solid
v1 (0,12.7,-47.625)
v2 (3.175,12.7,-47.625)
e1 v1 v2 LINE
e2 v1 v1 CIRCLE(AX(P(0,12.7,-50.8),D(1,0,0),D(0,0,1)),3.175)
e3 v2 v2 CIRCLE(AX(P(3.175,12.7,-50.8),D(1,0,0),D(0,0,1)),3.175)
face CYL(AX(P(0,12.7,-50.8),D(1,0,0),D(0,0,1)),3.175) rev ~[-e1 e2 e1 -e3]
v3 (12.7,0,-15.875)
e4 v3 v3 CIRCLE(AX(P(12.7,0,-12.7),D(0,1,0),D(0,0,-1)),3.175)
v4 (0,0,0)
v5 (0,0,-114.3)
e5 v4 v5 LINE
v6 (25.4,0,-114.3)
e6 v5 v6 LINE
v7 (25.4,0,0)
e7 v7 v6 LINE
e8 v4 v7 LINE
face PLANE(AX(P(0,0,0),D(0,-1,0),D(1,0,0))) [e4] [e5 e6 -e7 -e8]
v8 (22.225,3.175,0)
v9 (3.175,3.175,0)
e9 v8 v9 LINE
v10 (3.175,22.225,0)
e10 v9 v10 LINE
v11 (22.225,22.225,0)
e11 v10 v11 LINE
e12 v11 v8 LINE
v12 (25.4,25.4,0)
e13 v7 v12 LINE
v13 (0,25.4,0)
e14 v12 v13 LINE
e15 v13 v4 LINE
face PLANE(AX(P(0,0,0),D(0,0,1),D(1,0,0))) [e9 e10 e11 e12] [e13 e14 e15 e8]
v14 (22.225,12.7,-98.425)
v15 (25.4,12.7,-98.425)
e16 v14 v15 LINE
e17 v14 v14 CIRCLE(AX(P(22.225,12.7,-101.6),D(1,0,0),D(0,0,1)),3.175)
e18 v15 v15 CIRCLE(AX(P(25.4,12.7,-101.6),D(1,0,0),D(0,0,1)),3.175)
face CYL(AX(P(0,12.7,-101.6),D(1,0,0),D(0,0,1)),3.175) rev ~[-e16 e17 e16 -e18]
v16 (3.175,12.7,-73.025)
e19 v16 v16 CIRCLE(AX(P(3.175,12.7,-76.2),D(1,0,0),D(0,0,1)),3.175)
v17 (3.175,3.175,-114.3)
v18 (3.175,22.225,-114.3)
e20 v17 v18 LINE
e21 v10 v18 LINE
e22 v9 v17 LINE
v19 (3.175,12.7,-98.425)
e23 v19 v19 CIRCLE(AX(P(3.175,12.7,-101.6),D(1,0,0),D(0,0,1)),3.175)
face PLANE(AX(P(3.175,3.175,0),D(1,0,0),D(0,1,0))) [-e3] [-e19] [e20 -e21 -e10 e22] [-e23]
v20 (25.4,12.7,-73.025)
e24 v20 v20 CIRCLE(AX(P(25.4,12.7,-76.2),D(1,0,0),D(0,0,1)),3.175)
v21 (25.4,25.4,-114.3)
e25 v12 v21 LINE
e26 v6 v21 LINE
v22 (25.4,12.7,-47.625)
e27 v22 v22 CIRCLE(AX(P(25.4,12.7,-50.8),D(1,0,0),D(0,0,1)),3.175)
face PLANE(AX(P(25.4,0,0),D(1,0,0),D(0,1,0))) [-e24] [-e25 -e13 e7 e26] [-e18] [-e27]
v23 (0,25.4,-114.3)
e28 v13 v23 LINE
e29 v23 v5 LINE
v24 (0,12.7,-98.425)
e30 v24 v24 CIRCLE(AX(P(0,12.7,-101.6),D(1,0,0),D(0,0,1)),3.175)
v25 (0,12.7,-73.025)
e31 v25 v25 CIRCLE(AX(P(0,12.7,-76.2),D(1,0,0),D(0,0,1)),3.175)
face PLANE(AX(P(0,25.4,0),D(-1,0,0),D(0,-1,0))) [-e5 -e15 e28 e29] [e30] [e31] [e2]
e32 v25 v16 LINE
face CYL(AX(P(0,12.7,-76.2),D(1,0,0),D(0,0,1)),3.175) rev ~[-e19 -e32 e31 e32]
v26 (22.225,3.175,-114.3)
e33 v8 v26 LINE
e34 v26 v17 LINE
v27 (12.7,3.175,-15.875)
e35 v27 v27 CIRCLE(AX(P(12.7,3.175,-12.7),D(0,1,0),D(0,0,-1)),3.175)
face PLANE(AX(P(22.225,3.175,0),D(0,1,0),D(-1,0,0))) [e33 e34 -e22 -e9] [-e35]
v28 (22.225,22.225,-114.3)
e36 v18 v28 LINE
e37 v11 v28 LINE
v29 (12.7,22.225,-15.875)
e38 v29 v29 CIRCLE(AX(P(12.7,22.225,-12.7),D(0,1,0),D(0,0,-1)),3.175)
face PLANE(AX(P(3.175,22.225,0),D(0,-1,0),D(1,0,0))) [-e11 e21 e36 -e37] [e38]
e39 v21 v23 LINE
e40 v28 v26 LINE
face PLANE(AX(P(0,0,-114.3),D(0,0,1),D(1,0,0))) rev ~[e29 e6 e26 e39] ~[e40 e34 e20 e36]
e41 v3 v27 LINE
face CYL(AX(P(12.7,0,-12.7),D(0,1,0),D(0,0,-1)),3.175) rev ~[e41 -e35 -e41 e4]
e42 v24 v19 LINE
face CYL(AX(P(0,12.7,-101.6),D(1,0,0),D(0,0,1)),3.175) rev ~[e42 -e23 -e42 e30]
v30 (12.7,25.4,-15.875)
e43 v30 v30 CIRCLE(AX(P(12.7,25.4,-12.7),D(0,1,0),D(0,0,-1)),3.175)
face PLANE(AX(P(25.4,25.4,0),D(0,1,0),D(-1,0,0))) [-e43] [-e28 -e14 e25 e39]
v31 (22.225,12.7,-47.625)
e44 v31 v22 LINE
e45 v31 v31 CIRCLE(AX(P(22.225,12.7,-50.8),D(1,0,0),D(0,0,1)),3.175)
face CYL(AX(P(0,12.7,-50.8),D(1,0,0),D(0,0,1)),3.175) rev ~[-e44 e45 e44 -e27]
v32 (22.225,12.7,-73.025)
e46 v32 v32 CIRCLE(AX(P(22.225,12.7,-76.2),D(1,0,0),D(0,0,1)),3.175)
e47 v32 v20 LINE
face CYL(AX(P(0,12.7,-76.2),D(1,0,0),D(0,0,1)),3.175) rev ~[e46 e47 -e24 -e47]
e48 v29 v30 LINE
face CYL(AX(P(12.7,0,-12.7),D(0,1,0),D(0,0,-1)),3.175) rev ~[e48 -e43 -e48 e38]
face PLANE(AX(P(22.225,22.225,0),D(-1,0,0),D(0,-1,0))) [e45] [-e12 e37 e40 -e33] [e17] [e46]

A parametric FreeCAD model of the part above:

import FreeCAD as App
import Part
import Sketcher
Q = App.Units.Quantity

doc = App.newDocument("Part")
body = doc.addObject("PartDesign::Body", "Body")

sketch1 = body.newObject("Sketcher::SketchObject", "Sketch")
sketch1.AttachmentSupport = (doc.getObject("XY_Plane"), [""])
sketch1.MapMode = "FlatFace"
sketch1.addGeometry([
    Part.LineSegment(App.Vector(0, 25.4, 0), App.Vector(0, 0, 0)),
    Part.LineSegment(App.Vector(0, 0, 0), App.Vector(25.4, 0, 0)),
    Part.LineSegment(App.Vector(25.4, 0, 0), App.Vector(25.4, 25.4, 0)),
    Part.LineSegment(App.Vector(25.4, 25.4, 0), App.Vector(0, 25.4, 0)),
    Part.LineSegment(App.Vector(3.175, 3.175, 0), App.Vector(3.175, 22.225, 0)),
    Part.LineSegment(App.Vector(3.175, 22.225, 0), App.Vector(22.225, 22.225, 0)),
    Part.LineSegment(App.Vector(22.225, 22.225, 0), App.Vector(22.225, 3.175, 0)),
    Part.LineSegment(App.Vector(22.225, 3.175, 0), App.Vector(3.175, 3.175, 0)),
], False)
sketch1.addConstraint([
    Sketcher.Constraint("Coincident", 0, 2, 1, 1),
    Sketcher.Constraint("Coincident", 1, 2, 2, 1),
    Sketcher.Constraint("Coincident", 2, 2, 3, 1),
    Sketcher.Constraint("Coincident", 3, 2, 0, 1),
    Sketcher.Constraint("Coincident", 4, 2, 5, 1),
    Sketcher.Constraint("Coincident", 5, 2, 6, 1),
    Sketcher.Constraint("Coincident", 6, 2, 7, 1),
    Sketcher.Constraint("Coincident", 7, 2, 4, 1),
    Sketcher.Constraint("Vertical", 0),
    Sketcher.Constraint("Horizontal", 1),
    Sketcher.Constraint("Vertical", 2),
    Sketcher.Constraint("Horizontal", 3),
    Sketcher.Constraint("Vertical", 4),
    Sketcher.Constraint("Horizontal", 5),
    Sketcher.Constraint("Vertical", 6),
    Sketcher.Constraint("Horizontal", 7),
    Sketcher.Constraint("Coincident", 0, 2, -1, 1),
    Sketcher.Constraint("Equal", 3, 0),
    Sketcher.Constraint("Equal", 7, 4),
    Sketcher.Constraint("DistanceX", 1, 1, 1, 2, Q("1 in")),
    Sketcher.Constraint("DistanceX", -1, 1, 4, 2, Q("0.125 in")),
    Sketcher.Constraint("DistanceY", -1, 1, 6, 2, Q("0.125 in")),
    Sketcher.Constraint("DistanceY", 4, 2, 3, 2, Q("0.125 in")),
])
pad1 = body.newObject("PartDesign::Pad", "Pad")
pad1.Profile = sketch1
pad1.Length = Q("4.5 in")
pad1.Reversed = True

sketch2 = body.newObject("Sketcher::SketchObject", "Sketch001")
sketch2.AttachmentSupport = (doc.getObject("YZ_Plane"), [""])
sketch2.MapMode = "FlatFace"
sketch2.addGeometry([
    Part.Circle(App.Vector(12.7, -101.6, 0), App.Vector(0, 0, 1), 3.175),
    Part.Circle(App.Vector(12.7, -76.2, 0), App.Vector(0, 0, 1), 3.175),
    Part.Circle(App.Vector(12.7, -50.8, 0), App.Vector(0, 0, 1), 3.175),
], False)
sketch2.addConstraint([
    Sketcher.Constraint("Equal", 0, 1),
    Sketcher.Constraint("Equal", 1, 2),
    Sketcher.Constraint("Vertical", 0, 3, 1, 3),
    Sketcher.Constraint("Vertical", 1, 3, 2, 3),
    Sketcher.Constraint("Diameter", 0, Q("0.25 in")),
    Sketcher.Constraint("DistanceY", 0, 3, -1, 1, Q("4 in")),
    Sketcher.Constraint("DistanceY", 1, 3, -1, 1, Q("3 in")),
    Sketcher.Constraint("DistanceY", 2, 3, -1, 1, Q("2 in")),
    Sketcher.Constraint("DistanceX", -1, 1, 0, 3, Q("0.5 in")),
])
doc.recompute()
hole = body.newObject("PartDesign::Hole", "Hole")
hole.Profile = sketch2
hole.ThreadType = "None"
hole.Diameter = Q("0.25 in")
hole.DepthType = "Dimension"
hole.Depth = Q("1 in")
hole.DrillPoint = "Angled"
hole.DrillPointAngle = 118
hole.Reversed = True

sketch3 = body.newObject("Sketcher::SketchObject", "Sketch002")
sketch3.AttachmentSupport = (doc.getObject("XZ_Plane"), [""])
sketch3.MapMode = "FlatFace"
sketch3.addGeometry(Part.Circle(App.Vector(12.7, -12.7, 0), App.Vector(0, 0, 1), 3.175), False)
sketch3.addConstraint([
    Sketcher.Constraint("Diameter", 0, Q("0.25 in")),
    Sketcher.Constraint("DistanceX", -1, 1, 0, 3, Q("0.5 in")),
    Sketcher.Constraint("DistanceY", 0, 3, -1, 1, Q("0.5 in")),
])
doc.recompute()
hole2 = body.newObject("PartDesign::Hole", "Hole001")
hole2.Profile = sketch3
hole2.ThreadType = "None"
hole2.Diameter = Q("0.25 in")
hole2.DepthType = "Dimension"
hole2.Depth = Q("1 in")
hole2.DrillPoint = "Angled"
hole2.DrillPointAngle = 118

doc.recompute()
